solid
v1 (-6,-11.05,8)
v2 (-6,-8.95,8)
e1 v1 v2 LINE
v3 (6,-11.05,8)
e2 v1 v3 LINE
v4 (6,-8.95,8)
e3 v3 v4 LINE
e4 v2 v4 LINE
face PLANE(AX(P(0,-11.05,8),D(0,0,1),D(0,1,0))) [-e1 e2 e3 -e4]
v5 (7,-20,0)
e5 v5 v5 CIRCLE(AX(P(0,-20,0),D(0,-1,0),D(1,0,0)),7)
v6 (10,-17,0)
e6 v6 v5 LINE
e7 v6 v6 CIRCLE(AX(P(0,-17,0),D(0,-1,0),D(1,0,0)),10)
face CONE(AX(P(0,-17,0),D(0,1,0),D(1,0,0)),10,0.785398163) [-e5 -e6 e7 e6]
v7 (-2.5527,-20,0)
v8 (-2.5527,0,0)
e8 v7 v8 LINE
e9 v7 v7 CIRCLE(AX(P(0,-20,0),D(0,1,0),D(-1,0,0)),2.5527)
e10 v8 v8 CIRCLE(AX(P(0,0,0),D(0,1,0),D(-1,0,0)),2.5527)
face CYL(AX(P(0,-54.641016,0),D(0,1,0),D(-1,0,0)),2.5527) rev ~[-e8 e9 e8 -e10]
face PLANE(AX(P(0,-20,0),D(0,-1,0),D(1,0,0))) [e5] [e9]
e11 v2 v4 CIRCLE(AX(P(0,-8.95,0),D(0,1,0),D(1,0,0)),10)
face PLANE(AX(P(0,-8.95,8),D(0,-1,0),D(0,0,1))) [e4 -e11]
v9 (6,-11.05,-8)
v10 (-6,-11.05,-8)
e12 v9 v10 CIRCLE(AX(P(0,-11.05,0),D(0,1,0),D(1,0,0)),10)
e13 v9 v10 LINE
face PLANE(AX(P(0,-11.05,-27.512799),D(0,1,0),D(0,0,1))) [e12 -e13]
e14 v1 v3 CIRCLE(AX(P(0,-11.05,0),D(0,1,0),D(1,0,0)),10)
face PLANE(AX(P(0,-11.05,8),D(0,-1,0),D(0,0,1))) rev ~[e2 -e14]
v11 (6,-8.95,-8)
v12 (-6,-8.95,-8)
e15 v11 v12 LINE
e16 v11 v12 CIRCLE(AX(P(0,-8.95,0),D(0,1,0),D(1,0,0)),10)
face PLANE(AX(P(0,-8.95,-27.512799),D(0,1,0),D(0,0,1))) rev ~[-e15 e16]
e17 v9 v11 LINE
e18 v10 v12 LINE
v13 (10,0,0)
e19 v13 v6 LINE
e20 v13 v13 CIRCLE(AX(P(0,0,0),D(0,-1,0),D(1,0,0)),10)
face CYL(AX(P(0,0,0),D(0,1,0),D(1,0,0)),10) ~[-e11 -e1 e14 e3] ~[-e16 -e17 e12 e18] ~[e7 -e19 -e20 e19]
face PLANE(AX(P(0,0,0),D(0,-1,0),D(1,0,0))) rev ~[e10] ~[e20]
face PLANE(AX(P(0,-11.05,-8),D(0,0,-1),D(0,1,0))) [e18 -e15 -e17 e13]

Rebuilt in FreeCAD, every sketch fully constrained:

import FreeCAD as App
import Part
import Sketcher
from FreeCAD import Vector
Q = App.Units.Quantity


def edges_at(feature, points):
    """Names of the edges that pass closest to the given points."""
    edges = feature.Shape.Edges
    near = lambda p: min(range(len(edges)), key=lambda i: edges[i].distToShape(Part.Vertex(*p))[0])
    return sorted({f"Edge{near(p) + 1}" for p in points})


def add_polygon(sketch, points):
    """Adds a closed chain of lines whose ends are joined by coincident constraints."""
    first, n = sketch.GeometryCount, len(points)
    for a, b in zip(points, points[1:] + points[:1]):
        sketch.addGeometry(Part.LineSegment(App.Vector(*a, 0), App.Vector(*b, 0)), False)
    for i in range(n):
        sketch.addConstraint(Sketcher.Constraint("Coincident", first + i, 2, first + (i + 1) % n, 1))

doc = App.newDocument("Part")
body = doc.addObject("PartDesign::Body", "Body")

# Sketch on XZ plane
sketch1 = body.newObject("Sketcher::SketchObject", "Sketch")
sketch1.AttachmentSupport = (doc.getObject("XZ_Plane"), [""])
sketch1.MapMode = "FlatFace"
sketch1.addGeometry(Part.Circle(Vector(0, 0, 0), Vector(0, 0, 1), 10), False)
sketch1.addConstraint([
    Sketcher.Constraint("Coincident", 0, 3, -1, 1),
    Sketcher.Constraint("Diameter", 0, Q("20 mm")),
])
pad1 = body.newObject("PartDesign::Pad", "Pad")
pad1.Profile = sketch1
pad1.Length = 20

# Sketch on XZ plane
sketch2 = body.newObject("Sketcher::SketchObject", "Sketch001")
sketch2.AttachmentSupport = (doc.getObject("XZ_Plane"), [""])
sketch2.MapMode = "FlatFace"
sketch2.AttachmentOffset = App.Placement(Vector(0, 0, 20), App.Rotation())
sketch2.addGeometry(Part.Circle(Vector(0, 0, 0), Vector(0, 0, 1), 2.6), False)
sketch2.addConstraint([
    Sketcher.Constraint("Coincident", 0, 3, -1, 1),
    Sketcher.Constraint("Diameter", 0, Q("5.1054 mm")),
])
doc.recompute()
hole = body.newObject("PartDesign::Hole", "Hole")
hole.Profile = sketch2
hole.ThreadType = "None"
hole.Diameter = 5.1054
hole.DepthType = "ThroughAll"

# Sketch on YZ plane
sketch3 = body.newObject("Sketcher::SketchObject", "Sketch002")
sketch3.AttachmentSupport = (doc.getObject("YZ_Plane"), [""])
sketch3.MapMode = "FlatFace"
add_polygon(sketch3, [(-11.1, 27.5), (-11.1, 8), (-8.9, 8), (-8.9, 27.5)])  # lines 0-3
add_polygon(sketch3, [(-11.1, -8), (-11.1, -27.5), (-8.9, -27.5), (-8.9, -8)])  # lines 4-7
sketch3.addConstraint([
    Sketcher.Constraint("Vertical", 0),
    Sketcher.Constraint("Horizontal", 1),
    Sketcher.Constraint("Vertical", 2),
    Sketcher.Constraint("Horizontal", 3),
    Sketcher.Constraint("Vertical", 4),
    Sketcher.Constraint("Horizontal", 5),
    Sketcher.Constraint("Vertical", 6),
    Sketcher.Constraint("Horizontal", 7),
    Sketcher.Constraint("Symmetric", 3, 2, 4, 2, -1),
    Sketcher.Constraint("Symmetric", 1, 2, 6, 2, -1),
    Sketcher.Constraint("DistanceX", 1, 1, 1, 2, Q("2.1 mm")),
    Sketcher.Constraint("DistanceY", -1, 1, 0, 2, Q("8 mm")),
    Sketcher.Constraint("DistanceX", 0, 2, -1, 1, Q("11.05 mm")),
    Sketcher.Constraint("DistanceY", 0, 2, 0, 1, Q("19.512799 mm")),
])
pocket1 = body.newObject("PartDesign::Pocket", "Pocket")
pocket1.Profile = sketch3
pocket1.Length = 25
pocket1.Midplane = True
doc.recompute()

chamfer = body.newObject("PartDesign::Chamfer", "Chamfer")
chamfer.Base = (pocket1, edges_at(pocket1, [(-10, -20, 0)]))
chamfer.Size = 3

doc.recompute()
